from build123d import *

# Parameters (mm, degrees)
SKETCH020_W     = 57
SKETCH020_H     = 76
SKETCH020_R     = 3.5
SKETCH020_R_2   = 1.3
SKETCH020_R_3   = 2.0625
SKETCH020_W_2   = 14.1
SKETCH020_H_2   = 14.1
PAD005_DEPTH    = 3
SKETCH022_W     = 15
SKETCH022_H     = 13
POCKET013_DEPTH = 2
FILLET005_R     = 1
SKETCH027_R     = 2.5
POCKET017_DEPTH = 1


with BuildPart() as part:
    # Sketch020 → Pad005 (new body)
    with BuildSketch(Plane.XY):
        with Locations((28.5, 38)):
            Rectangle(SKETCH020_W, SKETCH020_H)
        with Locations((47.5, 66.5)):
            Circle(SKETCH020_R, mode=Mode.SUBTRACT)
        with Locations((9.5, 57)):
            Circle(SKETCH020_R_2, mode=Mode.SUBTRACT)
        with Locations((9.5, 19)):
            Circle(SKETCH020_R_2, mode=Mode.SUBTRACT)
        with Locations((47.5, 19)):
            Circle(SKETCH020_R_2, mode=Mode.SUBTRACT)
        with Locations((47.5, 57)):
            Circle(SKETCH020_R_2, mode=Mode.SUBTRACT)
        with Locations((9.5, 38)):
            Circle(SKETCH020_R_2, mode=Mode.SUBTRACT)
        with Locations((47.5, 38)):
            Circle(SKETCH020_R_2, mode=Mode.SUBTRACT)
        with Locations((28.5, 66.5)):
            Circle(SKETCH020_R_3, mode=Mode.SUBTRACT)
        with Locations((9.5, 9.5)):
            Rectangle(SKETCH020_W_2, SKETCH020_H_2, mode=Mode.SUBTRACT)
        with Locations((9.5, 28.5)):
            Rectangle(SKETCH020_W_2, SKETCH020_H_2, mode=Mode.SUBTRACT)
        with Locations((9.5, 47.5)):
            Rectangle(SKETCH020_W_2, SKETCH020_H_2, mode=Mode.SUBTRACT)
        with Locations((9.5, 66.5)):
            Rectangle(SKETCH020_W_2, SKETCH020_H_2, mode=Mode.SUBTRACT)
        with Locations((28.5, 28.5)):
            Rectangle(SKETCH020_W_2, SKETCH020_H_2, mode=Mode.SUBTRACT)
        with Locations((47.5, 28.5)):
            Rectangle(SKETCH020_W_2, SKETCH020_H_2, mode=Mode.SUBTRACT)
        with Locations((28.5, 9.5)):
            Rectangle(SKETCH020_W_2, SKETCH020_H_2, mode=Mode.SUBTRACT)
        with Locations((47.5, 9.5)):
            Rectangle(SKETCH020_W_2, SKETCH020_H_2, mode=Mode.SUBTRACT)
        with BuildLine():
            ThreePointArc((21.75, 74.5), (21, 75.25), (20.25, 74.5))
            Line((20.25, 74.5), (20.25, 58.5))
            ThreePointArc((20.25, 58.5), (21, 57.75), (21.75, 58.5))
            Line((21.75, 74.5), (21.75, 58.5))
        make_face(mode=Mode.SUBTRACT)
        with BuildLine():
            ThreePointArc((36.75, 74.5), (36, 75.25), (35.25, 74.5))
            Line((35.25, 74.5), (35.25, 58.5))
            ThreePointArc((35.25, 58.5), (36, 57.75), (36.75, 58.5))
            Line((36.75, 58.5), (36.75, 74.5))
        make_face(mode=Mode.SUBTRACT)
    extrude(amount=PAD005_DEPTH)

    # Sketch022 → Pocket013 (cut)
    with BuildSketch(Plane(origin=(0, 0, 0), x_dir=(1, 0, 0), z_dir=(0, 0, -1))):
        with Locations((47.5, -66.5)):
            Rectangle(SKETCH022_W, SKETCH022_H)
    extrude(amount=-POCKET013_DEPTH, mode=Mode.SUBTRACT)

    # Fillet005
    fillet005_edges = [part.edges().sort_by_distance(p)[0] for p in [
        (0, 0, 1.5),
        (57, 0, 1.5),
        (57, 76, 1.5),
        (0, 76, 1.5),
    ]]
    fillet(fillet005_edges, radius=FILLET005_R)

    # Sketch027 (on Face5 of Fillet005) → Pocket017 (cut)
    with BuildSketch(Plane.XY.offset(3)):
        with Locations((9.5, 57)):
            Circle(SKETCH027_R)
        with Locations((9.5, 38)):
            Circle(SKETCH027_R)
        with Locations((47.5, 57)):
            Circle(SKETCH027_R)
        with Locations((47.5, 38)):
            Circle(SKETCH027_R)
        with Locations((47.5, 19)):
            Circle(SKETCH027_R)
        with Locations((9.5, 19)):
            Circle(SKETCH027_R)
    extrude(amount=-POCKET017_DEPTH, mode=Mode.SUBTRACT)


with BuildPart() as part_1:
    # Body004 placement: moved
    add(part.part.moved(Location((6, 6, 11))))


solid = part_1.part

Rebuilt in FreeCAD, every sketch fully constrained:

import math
import FreeCAD as App
import Part
import Sketcher
from FreeCAD import Vector


def edges_at(feature, points):
    """Names of the edges that pass closest to the given points."""
    edges = feature.Shape.Edges
    near = lambda p: min(range(len(edges)), key=lambda i: edges[i].distToShape(Part.Vertex(*p))[0])
    return sorted({f"Edge{near(p) + 1}" for p in points})

doc = App.newDocument("Part")
body = doc.addObject("PartDesign::Body", "Body")

sketch1 = doc.addObject("Sketcher::SketchObject", "Sketch")
body.addObject(sketch1)
sketch1.AttachmentSupport = (doc.XY_Plane, [""])
sketch1.MapMode = "FlatFace"
sketch1.addGeometry(Part.LineSegment(Vector(0, 76, 0), Vector(0, 0, 0)), False)
sketch1.addGeometry(Part.LineSegment(Vector(0, 0, 0), Vector(57, 0, 0)), False)
sketch1.addGeometry(Part.LineSegment(Vector(57, 0, 0), Vector(57, 76, 0)), False)
sketch1.addGeometry(Part.LineSegment(Vector(57, 76, 0), Vector(0, 76, 0)), False)
sketch1.addGeometry(Part.LineSegment(Vector(16.55, 2.45, 0), Vector(2.45, 2.45, 0)), False)
sketch1.addGeometry(Part.LineSegment(Vector(2.45, 2.45, 0), Vector(2.45, 16.55, 0)), False)
sketch1.addGeometry(Part.LineSegment(Vector(2.45, 16.55, 0), Vector(16.55, 16.55, 0)), False)
sketch1.addGeometry(Part.LineSegment(Vector(16.55, 16.55, 0), Vector(16.55, 2.45, 0)), False)
sketch1.addGeometry(Part.Circle(Vector(9.5, 19, 0), Vector(0, 0, 1), 1.3), False)
sketch1.addGeometry(Part.LineSegment(Vector(16.55, 21.45, 0), Vector(2.45, 21.45, 0)), False)
sketch1.addGeometry(Part.LineSegment(Vector(2.45, 21.45, 0), Vector(2.45, 35.55, 0)), False)
sketch1.addGeometry(Part.LineSegment(Vector(2.45, 35.55, 0), Vector(16.55, 35.55, 0)), False)
sketch1.addGeometry(Part.LineSegment(Vector(16.55, 35.55, 0), Vector(16.55, 21.45, 0)), False)
sketch1.addGeometry(Part.Circle(Vector(9.5, 38, 0), Vector(0, 0, 1), 1.3), False)
sketch1.addGeometry(Part.LineSegment(Vector(35.55, 2.45, 0), Vector(21.45, 2.45, 0)), False)
sketch1.addGeometry(Part.LineSegment(Vector(21.45, 2.45, 0), Vector(21.45, 16.55, 0)), False)
sketch1.addGeometry(Part.LineSegment(Vector(21.45, 16.55, 0), Vector(35.55, 16.55, 0)), False)
sketch1.addGeometry(Part.LineSegment(Vector(35.55, 16.55, 0), Vector(35.55, 2.45, 0)), False)
sketch1.addGeometry(Part.LineSegment(Vector(54.55, 2.45, 0), Vector(40.45, 2.45, 0)), False)
sketch1.addGeometry(Part.LineSegment(Vector(40.45, 2.45, 0), Vector(40.45, 16.55, 0)), False)
sketch1.addGeometry(Part.LineSegment(Vector(40.45, 16.55, 0), Vector(54.55, 16.55, 0)), False)
sketch1.addGeometry(Part.LineSegment(Vector(54.55, 16.55, 0), Vector(54.55, 2.45, 0)), False)
sketch1.addGeometry(Part.Circle(Vector(47.5, 19, 0), Vector(0, 0, 1), 1.3), False)
sketch1.addGeometry(Part.LineSegment(Vector(35.55, 21.45, 0), Vector(21.45, 21.45, 0)), False)
sketch1.addGeometry(Part.LineSegment(Vector(21.45, 21.45, 0), Vector(21.45, 35.55, 0)), False)
sketch1.addGeometry(Part.LineSegment(Vector(21.45, 35.55, 0), Vector(35.55, 35.55, 0)), False)
sketch1.addGeometry(Part.LineSegment(Vector(35.55, 35.55, 0), Vector(35.55, 21.45, 0)), False)
sketch1.addGeometry(Part.LineSegment(Vector(54.55, 21.45, 0), Vector(40.45, 21.45, 0)), False)
sketch1.addGeometry(Part.LineSegment(Vector(40.45, 21.45, 0), Vector(40.45, 35.55, 0)), False)
sketch1.addGeometry(Part.LineSegment(Vector(40.45, 35.55, 0), Vector(54.55, 35.55, 0)), False)
sketch1.addGeometry(Part.LineSegment(Vector(54.55, 35.55, 0), Vector(54.55, 21.45, 0)), False)
sketch1.addGeometry(Part.Circle(Vector(47.5, 38, 0), Vector(0, 0, 1), 1.3), False)
sketch1.addGeometry(Part.LineSegment(Vector(16.55, 40.45, 0), Vector(2.45, 40.45, 0)), False)
sketch1.addGeometry(Part.LineSegment(Vector(2.45, 40.45, 0), Vector(2.45, 54.55, 0)), False)
sketch1.addGeometry(Part.LineSegment(Vector(2.45, 54.55, 0), Vector(16.55, 54.55, 0)), False)
sketch1.addGeometry(Part.LineSegment(Vector(16.55, 54.55, 0), Vector(16.55, 40.45, 0)), False)
sketch1.addGeometry(Part.Circle(Vector(9.5, 57, 0), Vector(0, 0, 1), 1.3), False)
sketch1.addGeometry(Part.LineSegment(Vector(16.55, 59.45, 0), Vector(2.45, 59.45, 0)), False)
sketch1.addGeometry(Part.LineSegment(Vector(2.45, 59.45, 0), Vector(2.45, 73.55, 0)), False)
sketch1.addGeometry(Part.LineSegment(Vector(2.45, 73.55, 0), Vector(16.55, 73.55, 0)), False)
sketch1.addGeometry(Part.LineSegment(Vector(16.55, 73.55, 0), Vector(16.55, 59.45, 0)), False)
sketch1.addGeometry(Part.ArcOfCircle(Part.Circle(Vector(21, 74.5, 0), Vector(0, 0, 1), 0.75), math.radians(0), math.radians(180)), False)
sketch1.addGeometry(Part.LineSegment(Vector(21.75, 74.5, 0), Vector(21.75, 58.5, 0)), False)
sketch1.addGeometry(Part.ArcOfCircle(Part.Circle(Vector(21, 58.5, 0), Vector(0, 0, 1), 0.75), math.radians(180), math.radians(360)), False)
sketch1.addGeometry(Part.LineSegment(Vector(20.25, 58.5, 0), Vector(20.25, 74.5, 0)), False)
sketch1.addGeometry(Part.Circle(Vector(47.5, 57, 0), Vector(0, 0, 1), 1.3), False)
sketch1.addGeometry(Part.Circle(Vector(28.5, 66.5, 0), Vector(0, 0, 1), 2.0625), False)
sketch1.addGeometry(Part.ArcOfCircle(Part.Circle(Vector(36, 74.5, 0), Vector(0, 0, 1), 0.75), math.radians(0), math.radians(180)), False)
sketch1.addGeometry(Part.LineSegment(Vector(36.75, 74.5, 0), Vector(36.75, 58.5, 0)), False)
sketch1.addGeometry(Part.ArcOfCircle(Part.Circle(Vector(36, 58.5, 0), Vector(0, 0, 1), 0.75), math.radians(180), math.radians(360)), False)
sketch1.addGeometry(Part.LineSegment(Vector(35.25, 58.5, 0), Vector(35.25, 74.5, 0)), False)
sketch1.addGeometry(Part.Circle(Vector(47.5, 66.5, 0), Vector(0, 0, 1), 3.5), False)
sketch1.addConstraint(Sketcher.Constraint("Coincident", 0, 2, 1, 1))
sketch1.addConstraint(Sketcher.Constraint("Coincident", 1, 2, 2, 1))
sketch1.addConstraint(Sketcher.Constraint("Coincident", 2, 2, 3, 1))
sketch1.addConstraint(Sketcher.Constraint("Coincident", 3, 2, 0, 1))
sketch1.addConstraint(Sketcher.Constraint("Coincident", 4, 2, 5, 1))
sketch1.addConstraint(Sketcher.Constraint("Coincident", 5, 2, 6, 1))
sketch1.addConstraint(Sketcher.Constraint("Coincident", 6, 2, 7, 1))
sketch1.addConstraint(Sketcher.Constraint("Coincident", 7, 2, 4, 1))
sketch1.addConstraint(Sketcher.Constraint("Coincident", 9, 2, 10, 1))
sketch1.addConstraint(Sketcher.Constraint("Coincident", 10, 2, 11, 1))
sketch1.addConstraint(Sketcher.Constraint("Coincident", 11, 2, 12, 1))
sketch1.addConstraint(Sketcher.Constraint("Coincident", 12, 2, 9, 1))
sketch1.addConstraint(Sketcher.Constraint("Coincident", 14, 2, 15, 1))
sketch1.addConstraint(Sketcher.Constraint("Coincident", 15, 2, 16, 1))
sketch1.addConstraint(Sketcher.Constraint("Coincident", 16, 2, 17, 1))
sketch1.addConstraint(Sketcher.Constraint("Coincident", 17, 2, 14, 1))
sketch1.addConstraint(Sketcher.Constraint("Coincident", 18, 2, 19, 1))
sketch1.addConstraint(Sketcher.Constraint("Coincident", 19, 2, 20, 1))
sketch1.addConstraint(Sketcher.Constraint("Coincident", 20, 2, 21, 1))
sketch1.addConstraint(Sketcher.Constraint("Coincident", 21, 2, 18, 1))
sketch1.addConstraint(Sketcher.Constraint("Coincident", 23, 2, 24, 1))
sketch1.addConstraint(Sketcher.Constraint("Coincident", 24, 2, 25, 1))
sketch1.addConstraint(Sketcher.Constraint("Coincident", 25, 2, 26, 1))
sketch1.addConstraint(Sketcher.Constraint("Coincident", 26, 2, 23, 1))
sketch1.addConstraint(Sketcher.Constraint("Coincident", 27, 2, 28, 1))
sketch1.addConstraint(Sketcher.Constraint("Coincident", 28, 2, 29, 1))
sketch1.addConstraint(Sketcher.Constraint("Coincident", 29, 2, 30, 1))
sketch1.addConstraint(Sketcher.Constraint("Coincident", 30, 2, 27, 1))
sketch1.addConstraint(Sketcher.Constraint("Coincident", 32, 2, 33, 1))
sketch1.addConstraint(Sketcher.Constraint("Coincident", 33, 2, 34, 1))
sketch1.addConstraint(Sketcher.Constraint("Coincident", 34, 2, 35, 1))
sketch1.addConstraint(Sketcher.Constraint("Coincident", 35, 2, 32, 1))
sketch1.addConstraint(Sketcher.Constraint("Coincident", 37, 2, 38, 1))
sketch1.addConstraint(Sketcher.Constraint("Coincident", 38, 2, 39, 1))
sketch1.addConstraint(Sketcher.Constraint("Coincident", 39, 2, 40, 1))
sketch1.addConstraint(Sketcher.Constraint("Coincident", 40, 2, 37, 1))
sketch1.addConstraint(Sketcher.Constraint("Tangent", 41, 1, 42, 1))
sketch1.addConstraint(Sketcher.Constraint("Tangent", 42, 2, 43, 2))
sketch1.addConstraint(Sketcher.Constraint("Tangent", 43, 1, 44, 1))
sketch1.addConstraint(Sketcher.Constraint("Tangent", 44, 2, 41, 2))
sketch1.addConstraint(Sketcher.Constraint("Tangent", 47, 1, 48, 1))
sketch1.addConstraint(Sketcher.Constraint("Tangent", 48, 2, 49, 2))
sketch1.addConstraint(Sketcher.Constraint("Tangent", 49, 1, 50, 1))
sketch1.addConstraint(Sketcher.Constraint("Tangent", 50, 2, 47, 2))
sketch1.addConstraint(Sketcher.Constraint("Vertical", 0))
sketch1.addConstraint(Sketcher.Constraint("Horizontal", 1))
sketch1.addConstraint(Sketcher.Constraint("Vertical", 2))
sketch1.addConstraint(Sketcher.Constraint("Horizontal", 3))
sketch1.addConstraint(Sketcher.Constraint("Horizontal", 4))
sketch1.addConstraint(Sketcher.Constraint("Vertical", 5))
sketch1.addConstraint(Sketcher.Constraint("Horizontal", 6))
sketch1.addConstraint(Sketcher.Constraint("Vertical", 7))
sketch1.addConstraint(Sketcher.Constraint("Horizontal", 9))
sketch1.addConstraint(Sketcher.Constraint("Vertical", 10))
sketch1.addConstraint(Sketcher.Constraint("Horizontal", 11))
sketch1.addConstraint(Sketcher.Constraint("Vertical", 12))
sketch1.addConstraint(Sketcher.Constraint("Horizontal", 14))
sketch1.addConstraint(Sketcher.Constraint("Vertical", 15))
sketch1.addConstraint(Sketcher.Constraint("Horizontal", 16))
sketch1.addConstraint(Sketcher.Constraint("Vertical", 17))
sketch1.addConstraint(Sketcher.Constraint("Horizontal", 18))
sketch1.addConstraint(Sketcher.Constraint("Vertical", 19))
sketch1.addConstraint(Sketcher.Constraint("Horizontal", 20))
sketch1.addConstraint(Sketcher.Constraint("Vertical", 21))
sketch1.addConstraint(Sketcher.Constraint("Horizontal", 23))
sketch1.addConstraint(Sketcher.Constraint("Vertical", 24))
sketch1.addConstraint(Sketcher.Constraint("Horizontal", 25))
sketch1.addConstraint(Sketcher.Constraint("Vertical", 26))
sketch1.addConstraint(Sketcher.Constraint("Horizontal", 27))
sketch1.addConstraint(Sketcher.Constraint("Vertical", 28))
sketch1.addConstraint(Sketcher.Constraint("Horizontal", 29))
sketch1.addConstraint(Sketcher.Constraint("Vertical", 30))
sketch1.addConstraint(Sketcher.Constraint("Horizontal", 32))
sketch1.addConstraint(Sketcher.Constraint("Vertical", 33))
sketch1.addConstraint(Sketcher.Constraint("Horizontal", 34))
sketch1.addConstraint(Sketcher.Constraint("Vertical", 35))
sketch1.addConstraint(Sketcher.Constraint("Horizontal", 37))
sketch1.addConstraint(Sketcher.Constraint("Vertical", 38))
sketch1.addConstraint(Sketcher.Constraint("Horizontal", 39))
sketch1.addConstraint(Sketcher.Constraint("Vertical", 40))
sketch1.addConstraint(Sketcher.Constraint("Vertical", 42))
sketch1.addConstraint(Sketcher.Constraint("Vertical", 44))
sketch1.addConstraint(Sketcher.Constraint("Vertical", 48))
sketch1.addConstraint(Sketcher.Constraint("Vertical", 50))
sketch1.addConstraint(Sketcher.Constraint("Coincident", 0, 2, -1, 1))
sketch1.addConstraint(Sketcher.Constraint("Equal", 8, 13))
sketch1.addConstraint(Sketcher.Constraint("Equal", 13, 22))
sketch1.addConstraint(Sketcher.Constraint("Equal", 22, 31))
sketch1.addConstraint(Sketcher.Constraint("Equal", 31, 36))
sketch1.addConstraint(Sketcher.Constraint("Equal", 36, 45))
sketch1.addConstraint(Sketcher.Constraint("Equal", 43, 47))
sketch1.addConstraint(Sketcher.Constraint("Horizontal", 8, 3, 22, 3))
sketch1.addConstraint(Sketcher.Constraint("Horizontal", 13, 3, 31, 3))
sketch1.addConstraint(Sketcher.Constraint("Horizontal", 36, 3, 45, 3))
sketch1.addConstraint(Sketcher.Constraint("Horizontal", 41, 3, 47, 3))
sketch1.addConstraint(Sketcher.Constraint("Horizontal", 43, 3, 49, 3))
sketch1.addConstraint(Sketcher.Constraint("Horizontal", 46, 3, 51, 3))
sketch1.addConstraint(Sketcher.Constraint("Horizontal", 7, 2, 14, 2))
sketch1.addConstraint(Sketcher.Constraint("Horizontal", 6, 2, 15, 2))
sketch1.addConstraint(Sketcher.Constraint("Horizontal", 17, 2, 18, 2))
sketch1.addConstraint(Sketcher.Constraint("Horizontal", 16, 2, 19, 2))
sketch1.addConstraint(Sketcher.Constraint("Horizontal", 12, 2, 23, 2))
sketch1.addConstraint(Sketcher.Constraint("Horizontal", 11, 2, 24, 2))
sketch1.addConstraint(Sketcher.Constraint("Horizontal", 26, 2, 27, 2))
sketch1.addConstraint(Sketcher.Constraint("Horizontal", 25, 2, 28, 2))
sketch1.addConstraint(Sketcher.Constraint("Vertical", 8, 3, 13, 3))
sketch1.addConstraint(Sketcher.Constraint("Vertical", 22, 3, 31, 3))
sketch1.addConstraint(Sketcher.Constraint("Vertical", 13, 3, 36, 3))
sketch1.addConstraint(Sketcher.Constraint("Vertical", 31, 3, 45, 3))
sketch1.addConstraint(Sketcher.Constraint("Vertical", 45, 3, 51, 3))
sketch1.addConstraint(Sketcher.Constraint("Vertical", 5, 2, 9, 2))
sketch1.addConstraint(Sketcher.Constraint("Vertical", 7, 2, 11, 2))
sketch1.addConstraint(Sketcher.Constraint("Vertical", 15, 2, 23, 2))
sketch1.addConstraint(Sketcher.Constraint("Vertical", 17, 2, 25, 2))
sketch1.addConstraint(Sketcher.Constraint("Vertical", 19, 2, 27, 2))
sketch1.addConstraint(Sketcher.Constraint("Vertical", 21, 2, 29, 2))
sketch1.addConstraint(Sketcher.Constraint("Vertical", 10, 2, 32, 2))
sketch1.addConstraint(Sketcher.Constraint("Vertical", 12, 2, 34, 2))
sketch1.addConstraint(Sketcher.Constraint("Vertical", 33, 2, 37, 2))
sketch1.addConstraint(Sketcher.Constraint("Vertical", 35, 2, 39, 2))
sketch1.addConstraint(Sketcher.Constraint("Equal", 11, 14))
sketch1.addConstraint(Sketcher.Constraint("Equal", 16, 18))
sketch1.addConstraint(Sketcher.Constraint("Equal", 39, 5))
sketch1.addConstraint(Sketcher.Constraint("Equal", 7, 10))
sketch1.addConstraint(Sketcher.Constraint("Equal", 30, 33))
sketch1.addConstraint(Sketcher.Constraint("Equal", 35, 38))
sketch1.addConstraint(Sketcher.Constraint("Diameter", 51, 7.0))
sketch1.addConstraint(Sketcher.Constraint("Diameter", 8, 2.6))
sketch1.addConstraint(Sketcher.Constraint("DistanceX", 1, 1, 1, 2, 57.0))
sketch1.addConstraint(Sketcher.Constraint("DistanceY", 0, 2, 0, 1, 76.0))
sketch1.addConstraint(Sketcher.Constraint("DistanceY", 42, 2, 42, 1, 16.0))
sketch1.addConstraint(Sketcher.Constraint("Radius", 41, 0.75))
sketch1.addConstraint(Sketcher.Constraint("Diameter", 46, 4.125))
sketch1.addConstraint(Sketcher.Constraint("DistanceX", 4, 2, 4, 1, 14.1))
sketch1.addConstraint(Sketcher.Constraint("DistanceY", -1, 1, 8, 3, 19.0))
sketch1.addConstraint(Sketcher.Constraint("DistanceY", -1, 1, 13, 3, 38.0))
sketch1.addConstraint(Sketcher.Constraint("DistanceY", -1, 1, 36, 3, 57.0))
sketch1.addConstraint(Sketcher.Constraint("DistanceX", -1, 1, 41, 3, 21.0))
sketch1.addConstraint(Sketcher.Constraint("DistanceX", -1, 1, 47, 3, 36.0))
sketch1.addConstraint(Sketcher.Constraint("DistanceX", 8, 3, 22, 3, 38.0))
sketch1.addConstraint(Sketcher.Constraint("DistanceY", 46, 3, 41, 3, 8.0))
sketch1.addConstraint(Sketcher.Constraint("DistanceX", 36, 3, 46, 3, 19.0))
sketch1.addConstraint(Sketcher.Constraint("DistanceY", 4, 2, 9, 2, 19.0))
sketch1.addConstraint(Sketcher.Constraint("DistanceX", 4, 2, 14, 2, 19.0))
sketch1.addConstraint(Sketcher.Constraint("DistanceX", 14, 2, 18, 2, 19.0))
sketch1.addConstraint(Sketcher.Constraint("DistanceY", 9, 2, 32, 2, 19.0))
sketch1.addConstraint(Sketcher.Constraint("DistanceY", 33, 2, 38, 2, 19.0))
sketch1.addConstraint(Sketcher.Constraint("DistanceX", -1, 1, 8, 3, 9.5))
sketch1.addConstraint(Sketcher.Constraint("DistanceY", -1, 1, 41, 3, 74.5))
sketch1.addConstraint(Sketcher.Constraint("DistanceX", 39, 2, 41, 1, 5.2))
sketch1.addConstraint(Sketcher.Constraint("DistanceY", -1, 1, 4, 2, 2.45))
pad1 = doc.addObject("PartDesign::Pad", "Pad")
body.addObject(pad1)
pad1.Profile = sketch1
pad1.Length = 3

sketch2 = doc.addObject("Sketcher::SketchObject", "Sketch001")
body.addObject(sketch2)
sketch2.AttachmentSupport = (doc.XY_Plane, [""])
sketch2.MapMode = "FlatFace"
sketch2.addGeometry(Part.LineSegment(Vector(40, 60, 0), Vector(40, 73, 0)), False)
sketch2.addGeometry(Part.LineSegment(Vector(40, 73, 0), Vector(55, 73, 0)), False)
sketch2.addGeometry(Part.LineSegment(Vector(55, 73, 0), Vector(55, 60, 0)), False)
sketch2.addGeometry(Part.LineSegment(Vector(55, 60, 0), Vector(40, 60, 0)), False)
sketch2.addConstraint(Sketcher.Constraint("Coincident", 0, 2, 1, 1))
sketch2.addConstraint(Sketcher.Constraint("Coincident", 1, 2, 2, 1))
sketch2.addConstraint(Sketcher.Constraint("Coincident", 2, 2, 3, 1))
sketch2.addConstraint(Sketcher.Constraint("Coincident", 3, 2, 0, 1))
sketch2.addConstraint(Sketcher.Constraint("Vertical", 0))
sketch2.addConstraint(Sketcher.Constraint("Horizontal", 1))
sketch2.addConstraint(Sketcher.Constraint("Vertical", 2))
sketch2.addConstraint(Sketcher.Constraint("Horizontal", 3))
sketch2.addConstraint(Sketcher.Constraint("DistanceX", 1, 1, 1, 2, 15.0))
sketch2.addConstraint(Sketcher.Constraint("DistanceY", 0, 1, 0, 2, 13.0))
sketch2.addConstraint(Sketcher.Constraint("DistanceX", -1, 1, 0, 2, 40.0))
sketch2.addConstraint(Sketcher.Constraint("DistanceY", -1, 1, 0, 2, 73.0))
pocket1 = doc.addObject("PartDesign::Pocket", "Pocket")
body.addObject(pocket1)
pocket1.Profile = sketch2
pocket1.Length = 2
pocket1.Reversed = True
doc.recompute()

fillet = doc.addObject("PartDesign::Fillet", "Fillet")
body.addObject(fillet)
fillet.Base = (pocket1, edges_at(pocket1, [
    (0, 0, 1.5),
    (57, 0, 1.5),
    (57, 76, 1.5),
    (0, 76, 1.5),
]))
fillet.Radius = 1

sketch3 = doc.addObject("Sketcher::SketchObject", "Sketch002")
body.addObject(sketch3)
sketch3.AttachmentSupport = (doc.XY_Plane, [""])
sketch3.MapMode = "FlatFace"
sketch3.AttachmentOffset = App.Placement(Vector(0, 0, 3), App.Rotation())
sketch3.addGeometry(Part.Circle(Vector(9.5, 57, 0), Vector(0, 0, 1), 2.5), False)
sketch3.addGeometry(Part.Circle(Vector(9.5, 38, 0), Vector(0, 0, 1), 2.5), False)
sketch3.addGeometry(Part.Circle(Vector(47.5, 57, 0), Vector(0, 0, 1), 2.5), False)
sketch3.addGeometry(Part.Circle(Vector(47.5, 38, 0), Vector(0, 0, 1), 2.5), False)
sketch3.addGeometry(Part.Circle(Vector(47.5, 19, 0), Vector(0, 0, 1), 2.5), False)
sketch3.addGeometry(Part.Circle(Vector(9.5, 19, 0), Vector(0, 0, 1), 2.5), False)
sketch3.addConstraint(Sketcher.Constraint("Equal", 0, 1))
sketch3.addConstraint(Sketcher.Constraint("Equal", 1, 2))
sketch3.addConstraint(Sketcher.Constraint("Equal", 2, 3))
sketch3.addConstraint(Sketcher.Constraint("Equal", 3, 4))
sketch3.addConstraint(Sketcher.Constraint("Equal", 4, 5))
sketch3.addConstraint(Sketcher.Constraint("Horizontal", 0, 3, 2, 3))
sketch3.addConstraint(Sketcher.Constraint("Horizontal", 1, 3, 3, 3))
sketch3.addConstraint(Sketcher.Constraint("Horizontal", 4, 3, 5, 3))
sketch3.addConstraint(Sketcher.Constraint("Vertical", 0, 3, 1, 3))
sketch3.addConstraint(Sketcher.Constraint("Vertical", 2, 3, 3, 3))
sketch3.addConstraint(Sketcher.Constraint("Vertical", 3, 3, 4, 3))
sketch3.addConstraint(Sketcher.Constraint("Vertical", 1, 3, 5, 3))
sketch3.addConstraint(Sketcher.Constraint("Diameter", 0, 5.0))
sketch3.addConstraint(Sketcher.Constraint("DistanceY", -1, 1, 0, 3, 57.0))
sketch3.addConstraint(Sketcher.Constraint("DistanceY", -1, 1, 1, 3, 38.0))
sketch3.addConstraint(Sketcher.Constraint("DistanceY", -1, 1, 4, 3, 19.0))
sketch3.addConstraint(Sketcher.Constraint("DistanceX", 0, 3, 2, 3, 38.0))
sketch3.addConstraint(Sketcher.Constraint("DistanceX", -1, 1, 0, 3, 9.5))
pocket2 = doc.addObject("PartDesign::Pocket", "Pocket001")
body.addObject(pocket2)
pocket2.Profile = sketch3
pocket2.Length = 1
body2 = doc.addObject("PartDesign::Body", "Body001")
doc.recompute()

body.Placement = App.Placement(Vector(6, 6, 11), App.Rotation(Vector(0, 0, 1), 0))
boolean = doc.addObject("PartDesign::Boolean", "Boolean")
body2.addObject(boolean)
boolean.Type = "Fuse"
boolean.addObjects([body])

doc.recompute()
